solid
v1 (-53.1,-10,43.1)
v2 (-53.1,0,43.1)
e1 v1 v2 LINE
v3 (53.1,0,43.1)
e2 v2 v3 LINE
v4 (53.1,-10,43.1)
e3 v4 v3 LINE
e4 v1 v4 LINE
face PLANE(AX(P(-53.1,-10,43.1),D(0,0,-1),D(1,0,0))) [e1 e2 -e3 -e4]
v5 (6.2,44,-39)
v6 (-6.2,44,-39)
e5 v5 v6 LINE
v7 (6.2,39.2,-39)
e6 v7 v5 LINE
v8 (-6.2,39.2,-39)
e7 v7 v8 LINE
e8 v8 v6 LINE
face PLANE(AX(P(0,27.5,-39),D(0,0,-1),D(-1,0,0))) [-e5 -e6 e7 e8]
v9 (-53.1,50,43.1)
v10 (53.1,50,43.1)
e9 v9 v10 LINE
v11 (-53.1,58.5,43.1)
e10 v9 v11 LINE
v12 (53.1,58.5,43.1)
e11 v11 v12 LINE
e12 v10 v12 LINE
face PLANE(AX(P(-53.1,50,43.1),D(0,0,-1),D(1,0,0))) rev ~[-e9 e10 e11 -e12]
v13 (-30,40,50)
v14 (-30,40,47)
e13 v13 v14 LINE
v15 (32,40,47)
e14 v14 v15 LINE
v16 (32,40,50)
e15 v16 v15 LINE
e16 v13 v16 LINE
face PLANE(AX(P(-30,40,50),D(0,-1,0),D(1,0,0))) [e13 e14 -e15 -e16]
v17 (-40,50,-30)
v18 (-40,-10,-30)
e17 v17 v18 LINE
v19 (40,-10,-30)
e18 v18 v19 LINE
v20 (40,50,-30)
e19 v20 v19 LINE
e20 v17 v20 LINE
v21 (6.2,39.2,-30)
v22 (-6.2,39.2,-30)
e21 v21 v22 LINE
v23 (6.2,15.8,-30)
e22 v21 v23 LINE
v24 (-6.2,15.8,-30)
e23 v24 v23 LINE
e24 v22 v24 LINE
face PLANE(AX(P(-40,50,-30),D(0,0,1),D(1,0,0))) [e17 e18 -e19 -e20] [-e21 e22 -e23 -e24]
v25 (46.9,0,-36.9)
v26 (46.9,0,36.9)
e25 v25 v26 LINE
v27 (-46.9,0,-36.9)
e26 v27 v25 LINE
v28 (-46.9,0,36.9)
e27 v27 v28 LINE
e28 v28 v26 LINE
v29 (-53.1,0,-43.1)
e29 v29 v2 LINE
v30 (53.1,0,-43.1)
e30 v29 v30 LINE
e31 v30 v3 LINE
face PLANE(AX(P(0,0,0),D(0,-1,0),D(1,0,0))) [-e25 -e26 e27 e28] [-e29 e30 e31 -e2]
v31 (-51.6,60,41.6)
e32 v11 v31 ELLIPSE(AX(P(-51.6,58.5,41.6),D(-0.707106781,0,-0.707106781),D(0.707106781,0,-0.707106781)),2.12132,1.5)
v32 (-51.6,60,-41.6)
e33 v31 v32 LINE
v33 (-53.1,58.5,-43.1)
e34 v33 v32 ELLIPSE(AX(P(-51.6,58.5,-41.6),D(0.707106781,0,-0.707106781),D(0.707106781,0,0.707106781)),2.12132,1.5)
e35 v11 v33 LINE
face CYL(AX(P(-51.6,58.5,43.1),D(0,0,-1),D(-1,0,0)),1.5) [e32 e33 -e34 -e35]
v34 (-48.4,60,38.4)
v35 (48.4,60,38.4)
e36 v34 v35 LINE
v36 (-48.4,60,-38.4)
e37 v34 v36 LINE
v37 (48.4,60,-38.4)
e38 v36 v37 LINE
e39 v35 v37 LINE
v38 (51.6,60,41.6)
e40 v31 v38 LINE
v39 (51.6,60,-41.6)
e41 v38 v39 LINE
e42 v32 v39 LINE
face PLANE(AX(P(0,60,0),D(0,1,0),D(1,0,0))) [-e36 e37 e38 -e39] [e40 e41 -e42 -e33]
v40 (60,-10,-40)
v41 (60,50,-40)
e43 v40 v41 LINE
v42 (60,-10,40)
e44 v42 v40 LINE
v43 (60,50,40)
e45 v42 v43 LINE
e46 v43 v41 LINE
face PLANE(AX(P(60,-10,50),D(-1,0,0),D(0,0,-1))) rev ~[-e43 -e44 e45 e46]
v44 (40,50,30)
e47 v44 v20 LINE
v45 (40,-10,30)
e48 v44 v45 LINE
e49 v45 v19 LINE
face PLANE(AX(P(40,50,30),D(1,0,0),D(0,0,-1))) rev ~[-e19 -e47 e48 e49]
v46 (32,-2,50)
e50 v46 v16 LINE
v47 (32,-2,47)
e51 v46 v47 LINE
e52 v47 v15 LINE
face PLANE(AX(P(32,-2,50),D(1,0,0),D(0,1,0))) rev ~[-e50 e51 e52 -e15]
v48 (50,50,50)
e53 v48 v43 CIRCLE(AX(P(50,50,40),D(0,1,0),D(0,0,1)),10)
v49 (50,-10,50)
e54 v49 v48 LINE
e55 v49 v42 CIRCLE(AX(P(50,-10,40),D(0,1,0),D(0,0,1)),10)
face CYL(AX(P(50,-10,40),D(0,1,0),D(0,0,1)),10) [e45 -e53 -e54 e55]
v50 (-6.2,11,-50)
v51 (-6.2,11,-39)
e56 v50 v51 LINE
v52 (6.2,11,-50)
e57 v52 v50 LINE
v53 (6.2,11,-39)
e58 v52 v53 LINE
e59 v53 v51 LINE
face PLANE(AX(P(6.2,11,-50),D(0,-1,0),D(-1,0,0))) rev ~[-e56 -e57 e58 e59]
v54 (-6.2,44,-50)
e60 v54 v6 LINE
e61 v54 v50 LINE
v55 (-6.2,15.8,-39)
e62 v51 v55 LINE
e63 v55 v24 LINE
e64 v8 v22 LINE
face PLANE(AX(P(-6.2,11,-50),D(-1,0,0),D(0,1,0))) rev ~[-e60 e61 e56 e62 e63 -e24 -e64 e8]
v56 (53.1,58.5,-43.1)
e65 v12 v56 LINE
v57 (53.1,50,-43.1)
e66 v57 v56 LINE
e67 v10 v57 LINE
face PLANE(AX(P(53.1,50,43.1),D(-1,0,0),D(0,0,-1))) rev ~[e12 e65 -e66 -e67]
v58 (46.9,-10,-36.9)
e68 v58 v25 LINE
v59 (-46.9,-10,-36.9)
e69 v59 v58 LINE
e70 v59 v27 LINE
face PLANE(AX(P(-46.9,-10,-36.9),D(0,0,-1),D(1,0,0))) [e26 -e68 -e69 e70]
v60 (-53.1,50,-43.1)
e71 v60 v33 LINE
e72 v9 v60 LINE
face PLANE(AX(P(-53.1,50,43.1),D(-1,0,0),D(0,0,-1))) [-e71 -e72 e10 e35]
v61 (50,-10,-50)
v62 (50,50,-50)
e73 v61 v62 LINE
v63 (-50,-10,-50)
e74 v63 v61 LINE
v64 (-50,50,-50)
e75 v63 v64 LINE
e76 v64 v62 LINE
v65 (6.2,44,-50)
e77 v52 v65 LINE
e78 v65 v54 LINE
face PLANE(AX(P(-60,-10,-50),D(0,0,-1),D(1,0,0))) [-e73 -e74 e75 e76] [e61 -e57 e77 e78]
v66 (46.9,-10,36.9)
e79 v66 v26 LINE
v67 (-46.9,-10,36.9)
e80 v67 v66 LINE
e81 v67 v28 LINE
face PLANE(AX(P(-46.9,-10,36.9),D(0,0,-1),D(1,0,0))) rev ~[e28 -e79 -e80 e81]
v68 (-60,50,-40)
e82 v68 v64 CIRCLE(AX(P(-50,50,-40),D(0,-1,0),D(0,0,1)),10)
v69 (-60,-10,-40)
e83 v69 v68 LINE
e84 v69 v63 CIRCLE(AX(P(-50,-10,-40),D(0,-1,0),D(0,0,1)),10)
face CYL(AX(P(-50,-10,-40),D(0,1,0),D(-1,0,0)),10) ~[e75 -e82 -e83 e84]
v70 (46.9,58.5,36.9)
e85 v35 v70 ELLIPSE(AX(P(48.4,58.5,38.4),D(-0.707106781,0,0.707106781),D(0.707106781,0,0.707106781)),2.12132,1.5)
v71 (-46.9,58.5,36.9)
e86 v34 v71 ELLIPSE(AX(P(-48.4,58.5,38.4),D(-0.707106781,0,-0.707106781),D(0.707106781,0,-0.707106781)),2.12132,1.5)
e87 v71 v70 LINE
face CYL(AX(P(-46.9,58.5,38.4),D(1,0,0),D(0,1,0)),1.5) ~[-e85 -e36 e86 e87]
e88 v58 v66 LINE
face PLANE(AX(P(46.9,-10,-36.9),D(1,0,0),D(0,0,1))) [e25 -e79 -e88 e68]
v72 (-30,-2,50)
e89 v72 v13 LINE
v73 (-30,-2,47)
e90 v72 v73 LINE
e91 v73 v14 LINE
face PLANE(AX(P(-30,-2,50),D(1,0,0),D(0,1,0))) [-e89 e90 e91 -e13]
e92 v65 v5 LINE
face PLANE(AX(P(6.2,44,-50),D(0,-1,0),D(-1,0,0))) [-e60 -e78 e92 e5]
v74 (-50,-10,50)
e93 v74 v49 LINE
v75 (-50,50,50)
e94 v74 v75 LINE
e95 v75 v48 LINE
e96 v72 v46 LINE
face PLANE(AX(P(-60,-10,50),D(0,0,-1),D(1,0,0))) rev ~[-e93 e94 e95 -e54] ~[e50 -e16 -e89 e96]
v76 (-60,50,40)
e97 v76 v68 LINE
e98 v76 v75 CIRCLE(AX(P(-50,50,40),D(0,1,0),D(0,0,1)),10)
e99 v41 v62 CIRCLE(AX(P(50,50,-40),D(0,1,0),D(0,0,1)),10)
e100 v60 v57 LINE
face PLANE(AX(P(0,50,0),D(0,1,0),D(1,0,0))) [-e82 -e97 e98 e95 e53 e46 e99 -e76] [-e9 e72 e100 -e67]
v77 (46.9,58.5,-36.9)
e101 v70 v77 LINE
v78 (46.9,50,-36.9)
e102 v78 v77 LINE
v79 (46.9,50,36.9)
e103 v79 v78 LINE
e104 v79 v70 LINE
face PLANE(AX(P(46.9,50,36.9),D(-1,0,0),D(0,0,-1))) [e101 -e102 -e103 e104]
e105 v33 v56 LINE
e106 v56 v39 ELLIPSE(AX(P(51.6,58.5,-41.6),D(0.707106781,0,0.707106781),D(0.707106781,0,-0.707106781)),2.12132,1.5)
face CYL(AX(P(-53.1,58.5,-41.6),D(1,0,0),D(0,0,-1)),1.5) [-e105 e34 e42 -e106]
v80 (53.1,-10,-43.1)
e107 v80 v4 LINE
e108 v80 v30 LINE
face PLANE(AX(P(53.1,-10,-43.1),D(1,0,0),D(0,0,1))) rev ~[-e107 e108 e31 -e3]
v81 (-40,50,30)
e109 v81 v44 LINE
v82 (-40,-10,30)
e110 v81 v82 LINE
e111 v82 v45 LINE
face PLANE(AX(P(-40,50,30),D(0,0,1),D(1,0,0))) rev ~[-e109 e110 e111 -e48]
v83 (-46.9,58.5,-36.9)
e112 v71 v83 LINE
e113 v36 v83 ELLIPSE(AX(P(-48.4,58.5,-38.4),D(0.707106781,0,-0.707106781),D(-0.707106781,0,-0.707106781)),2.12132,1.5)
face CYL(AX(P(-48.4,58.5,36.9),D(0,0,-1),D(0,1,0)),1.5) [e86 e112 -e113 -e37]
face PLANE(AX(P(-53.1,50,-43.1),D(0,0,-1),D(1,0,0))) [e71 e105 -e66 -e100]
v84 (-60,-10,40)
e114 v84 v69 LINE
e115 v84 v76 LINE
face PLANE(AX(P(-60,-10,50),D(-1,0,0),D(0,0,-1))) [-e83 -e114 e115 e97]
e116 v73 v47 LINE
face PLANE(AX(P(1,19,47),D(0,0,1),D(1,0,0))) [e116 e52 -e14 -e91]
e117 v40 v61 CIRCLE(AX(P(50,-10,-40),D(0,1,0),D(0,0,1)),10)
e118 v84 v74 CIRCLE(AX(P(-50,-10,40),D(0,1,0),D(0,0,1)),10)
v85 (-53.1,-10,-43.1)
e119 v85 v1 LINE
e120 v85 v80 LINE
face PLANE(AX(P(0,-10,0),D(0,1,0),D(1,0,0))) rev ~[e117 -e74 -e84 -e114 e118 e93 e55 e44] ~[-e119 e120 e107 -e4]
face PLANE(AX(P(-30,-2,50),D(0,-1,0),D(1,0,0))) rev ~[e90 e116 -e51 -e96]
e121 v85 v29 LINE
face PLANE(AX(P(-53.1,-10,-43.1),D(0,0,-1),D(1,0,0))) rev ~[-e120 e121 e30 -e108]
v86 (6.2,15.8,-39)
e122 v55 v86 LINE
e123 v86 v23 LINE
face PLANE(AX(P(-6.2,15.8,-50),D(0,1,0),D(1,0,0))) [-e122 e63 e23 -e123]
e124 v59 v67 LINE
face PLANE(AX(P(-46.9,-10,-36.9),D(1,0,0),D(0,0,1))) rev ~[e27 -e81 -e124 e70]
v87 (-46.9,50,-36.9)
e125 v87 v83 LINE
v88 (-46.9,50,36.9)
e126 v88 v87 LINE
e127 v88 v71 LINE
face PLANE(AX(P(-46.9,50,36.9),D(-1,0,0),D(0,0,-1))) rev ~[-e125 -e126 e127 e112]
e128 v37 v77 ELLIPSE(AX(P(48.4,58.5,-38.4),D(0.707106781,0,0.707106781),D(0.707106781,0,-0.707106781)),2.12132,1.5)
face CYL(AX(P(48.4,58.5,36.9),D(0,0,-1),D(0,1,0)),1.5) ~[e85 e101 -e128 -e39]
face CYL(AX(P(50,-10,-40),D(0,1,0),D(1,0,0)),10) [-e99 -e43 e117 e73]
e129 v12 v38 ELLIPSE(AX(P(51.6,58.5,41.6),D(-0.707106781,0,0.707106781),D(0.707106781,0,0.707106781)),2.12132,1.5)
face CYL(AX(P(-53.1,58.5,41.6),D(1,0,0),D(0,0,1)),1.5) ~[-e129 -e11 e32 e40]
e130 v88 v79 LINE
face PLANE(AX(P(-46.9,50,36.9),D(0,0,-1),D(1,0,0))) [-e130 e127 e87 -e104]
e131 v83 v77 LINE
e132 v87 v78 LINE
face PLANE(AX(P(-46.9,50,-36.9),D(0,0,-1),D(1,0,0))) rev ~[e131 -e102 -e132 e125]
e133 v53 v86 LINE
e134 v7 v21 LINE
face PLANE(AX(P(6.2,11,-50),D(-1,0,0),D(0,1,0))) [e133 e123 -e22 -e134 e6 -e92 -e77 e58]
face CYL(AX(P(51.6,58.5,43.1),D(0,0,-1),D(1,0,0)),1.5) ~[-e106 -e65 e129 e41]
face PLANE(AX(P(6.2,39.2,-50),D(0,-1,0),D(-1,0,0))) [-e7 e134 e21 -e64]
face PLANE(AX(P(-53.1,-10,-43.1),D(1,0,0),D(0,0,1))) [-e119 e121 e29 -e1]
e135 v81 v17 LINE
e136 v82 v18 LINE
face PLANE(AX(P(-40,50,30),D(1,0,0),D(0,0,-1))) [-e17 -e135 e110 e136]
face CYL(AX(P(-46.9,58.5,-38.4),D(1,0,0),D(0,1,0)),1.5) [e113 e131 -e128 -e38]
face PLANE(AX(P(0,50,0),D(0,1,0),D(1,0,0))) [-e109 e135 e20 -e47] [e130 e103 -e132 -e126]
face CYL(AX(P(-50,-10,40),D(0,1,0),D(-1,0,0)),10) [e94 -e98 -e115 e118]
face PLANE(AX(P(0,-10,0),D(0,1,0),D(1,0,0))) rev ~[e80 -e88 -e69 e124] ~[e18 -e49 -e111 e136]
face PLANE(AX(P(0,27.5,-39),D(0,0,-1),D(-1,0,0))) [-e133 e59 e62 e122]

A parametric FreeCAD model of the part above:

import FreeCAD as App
import Part
import Sketcher

V = App.Vector


def edges_at(feature, points):
    """Names of the edges that pass closest to the given points."""
    edges = feature.Shape.Edges
    near = lambda p: min(range(len(edges)), key=lambda i: edges[i].distToShape(Part.Vertex(*p))[0])
    return sorted({f"Edge{near(p) + 1}" for p in points})

doc = App.newDocument("Part")
body = doc.addObject("PartDesign::Body", "Body")

# Sketch on XZ plane
sketch1 = body.newObject("Sketcher::SketchObject", "Sketch")
sketch1.AttachmentSupport = (doc.getObject("XZ_Plane"), [""])
sketch1.MapMode = "FlatFace"
sketch1.addGeometry([
    Part.LineSegment(V(-60, -50, 0), V(-60, 50, 0)),
    Part.LineSegment(V(-60, 50, 0), V(60, 50, 0)),
    Part.LineSegment(V(60, 50, 0), V(60, -50, 0)),
    Part.LineSegment(V(60, -50, 0), V(-60, -50, 0)),
], False)
sketch1.addConstraint([
    Sketcher.Constraint("Coincident", 0, 2, 1, 1),
    Sketcher.Constraint("Coincident", 1, 2, 2, 1),
    Sketcher.Constraint("Coincident", 2, 2, 3, 1),
    Sketcher.Constraint("Coincident", 3, 2, 0, 1),
    Sketcher.Constraint("Vertical", 0),
    Sketcher.Constraint("Horizontal", 1),
    Sketcher.Constraint("Vertical", 2),
    Sketcher.Constraint("Horizontal", 3),
    Sketcher.Constraint("Symmetric", 0, 2, 2, 2, -1, 1),
    Sketcher.Constraint("DistanceX", 1, 1, 1, 2, 120.0),
    Sketcher.Constraint("DistanceY", 0, 1, 0, 2, 100.0),
])
pad1 = body.newObject("PartDesign::Pad", "Pad")
pad1.Profile = sketch1
pad1.Type = "TwoLengths"
pad1.Length = 50
pad1.Length2 = 10
pad1.Reversed = True
doc.recompute()

fillet = body.newObject("PartDesign::Fillet", "Fillet")
fillet.Base = (pad1, edges_at(pad1, [
    (-60, 20, -50),
    (60, 20, -50),
    (60, 20, 50),
    (-60, 20, 50),
]))
fillet.Radius = 10

# Sketch on XZ plane
sketch2 = body.newObject("Sketcher::SketchObject", "Sketch001")
sketch2.AttachmentSupport = (doc.getObject("XZ_Plane"), [""])
sketch2.MapMode = "FlatFace"
sketch2.AttachmentOffset = App.Placement(V(0, 0, -50), App.Rotation())
sketch2.addGeometry([
    Part.LineSegment(V(-40, -30, 0), V(-40, 30, 0)),
    Part.LineSegment(V(-40, 30, 0), V(40, 30, 0)),
    Part.LineSegment(V(40, 30, 0), V(40, -30, 0)),
    Part.LineSegment(V(40, -30, 0), V(-40, -30, 0)),
], False)
sketch2.addConstraint([
    Sketcher.Constraint("Coincident", 0, 2, 1, 1),
    Sketcher.Constraint("Coincident", 1, 2, 2, 1),
    Sketcher.Constraint("Coincident", 2, 2, 3, 1),
    Sketcher.Constraint("Coincident", 3, 2, 0, 1),
    Sketcher.Constraint("Vertical", 0),
    Sketcher.Constraint("Horizontal", 1),
    Sketcher.Constraint("Vertical", 2),
    Sketcher.Constraint("Horizontal", 3),
    Sketcher.Constraint("Symmetric", 0, 2, 2, 2, -1, 1),
    Sketcher.Constraint("DistanceX", 1, 1, 1, 2, 80.0),
    Sketcher.Constraint("DistanceY", 0, 1, 0, 2, 60.0),
])
pocket1 = body.newObject("PartDesign::Pocket", "Pocket")
pocket1.Profile = sketch2
pocket1.Type = "ThroughAll"
pocket1.Reversed = True

# Sketch on XZ plane
sketch3 = body.newObject("Sketcher::SketchObject", "Sketch002")
sketch3.AttachmentSupport = (doc.getObject("XZ_Plane"), [""])
sketch3.MapMode = "FlatFace"
sketch3.AttachmentOffset = App.Placement(V(0, 0, 10), App.Rotation())
sketch3.addGeometry([
    Part.LineSegment(V(-53.1, 43.1, 0), V(-53.1, -43.1, 0)),  # 0
    Part.LineSegment(V(-53.1, -43.1, 0), V(53.1, -43.1, 0)),  # 1
    Part.LineSegment(V(53.1, -43.1, 0), V(53.1, 43.1, 0)),  # 2
    Part.LineSegment(V(53.1, 43.1, 0), V(-53.1, 43.1, 0)),  # 3
    Part.LineSegment(V(46.9, -36.9, 0), V(-46.9, -36.9, 0)),  # 4
    Part.LineSegment(V(-46.9, -36.9, 0), V(-46.9, 36.9, 0)),  # 5
    Part.LineSegment(V(-46.9, 36.9, 0), V(46.9, 36.9, 0)),  # 6
    Part.LineSegment(V(46.9, 36.9, 0), V(46.9, -36.9, 0)),  # 7
], False)
sketch3.addConstraint([
    Sketcher.Constraint("Coincident", 0, 2, 1, 1),
    Sketcher.Constraint("Coincident", 1, 2, 2, 1),
    Sketcher.Constraint("Coincident", 2, 2, 3, 1),
    Sketcher.Constraint("Coincident", 3, 2, 0, 1),
    Sketcher.Constraint("Coincident", 4, 2, 5, 1),
    Sketcher.Constraint("Coincident", 5, 2, 6, 1),
    Sketcher.Constraint("Coincident", 6, 2, 7, 1),
    Sketcher.Constraint("Coincident", 7, 2, 4, 1),
    Sketcher.Constraint("Vertical", 0),
    Sketcher.Constraint("Horizontal", 1),
    Sketcher.Constraint("Vertical", 2),
    Sketcher.Constraint("Horizontal", 3),
    Sketcher.Constraint("Horizontal", 4),
    Sketcher.Constraint("Vertical", 5),
    Sketcher.Constraint("Horizontal", 6),
    Sketcher.Constraint("Vertical", 7),
    Sketcher.Constraint("Symmetric", 0, 2, 2, 2, -1, 1),
    Sketcher.Constraint("Symmetric", 4, 2, 6, 2, -1, 1),
    Sketcher.Constraint("DistanceX", 1, 1, 1, 2, 106.2),
    Sketcher.Constraint("DistanceX", 4, 2, 4, 1, 93.8),
    Sketcher.Constraint("DistanceY", 0, 2, 0, 1, 86.2),
    Sketcher.Constraint("DistanceY", 5, 1, 5, 2, 73.8),
])
pocket2 = body.newObject("PartDesign::Pocket", "Pocket001")
pocket2.Profile = sketch3
pocket2.Length = 10

# Sketch on XZ plane
sketch4 = body.newObject("Sketcher::SketchObject", "Sketch003")
sketch4.AttachmentSupport = (doc.getObject("XZ_Plane"), [""])
sketch4.MapMode = "FlatFace"
sketch4.AttachmentOffset = App.Placement(V(0, 0, -50), App.Rotation())
sketch4.addGeometry([
    Part.LineSegment(V(-53.1, -43.1, 0), V(-53.1, 43.1, 0)),  # 0
    Part.LineSegment(V(-53.1, 43.1, 0), V(53.1, 43.1, 0)),  # 1
    Part.LineSegment(V(53.1, 43.1, 0), V(53.1, -43.1, 0)),  # 2
    Part.LineSegment(V(53.1, -43.1, 0), V(-53.1, -43.1, 0)),  # 3
    Part.LineSegment(V(46.9, 36.9, 0), V(-46.9, 36.9, 0)),  # 4
    Part.LineSegment(V(-46.9, 36.9, 0), V(-46.9, -36.9, 0)),  # 5
    Part.LineSegment(V(-46.9, -36.9, 0), V(46.9, -36.9, 0)),  # 6
    Part.LineSegment(V(46.9, -36.9, 0), V(46.9, 36.9, 0)),  # 7
], False)
sketch4.addConstraint([
    Sketcher.Constraint("Coincident", 0, 2, 1, 1),
    Sketcher.Constraint("Coincident", 1, 2, 2, 1),
    Sketcher.Constraint("Coincident", 2, 2, 3, 1),
    Sketcher.Constraint("Coincident", 3, 2, 0, 1),
    Sketcher.Constraint("Coincident", 4, 2, 5, 1),
    Sketcher.Constraint("Coincident", 5, 2, 6, 1),
    Sketcher.Constraint("Coincident", 6, 2, 7, 1),
    Sketcher.Constraint("Coincident", 7, 2, 4, 1),
    Sketcher.Constraint("Vertical", 0),
    Sketcher.Constraint("Horizontal", 1),
    Sketcher.Constraint("Vertical", 2),
    Sketcher.Constraint("Horizontal", 3),
    Sketcher.Constraint("Horizontal", 4),
    Sketcher.Constraint("Vertical", 5),
    Sketcher.Constraint("Horizontal", 6),
    Sketcher.Constraint("Vertical", 7),
    Sketcher.Constraint("Symmetric", 0, 2, 2, 2, -1, 1),
    Sketcher.Constraint("Symmetric", 4, 2, 6, 2, -1, 1),
    Sketcher.Constraint("DistanceX", 1, 1, 1, 2, 106.2),
    Sketcher.Constraint("DistanceX", 4, 2, 4, 1, 93.8),
    Sketcher.Constraint("DistanceY", 0, 1, 0, 2, 86.2),
    Sketcher.Constraint("DistanceY", 5, 2, 5, 1, 73.8),
])
pad2 = body.newObject("PartDesign::Pad", "Pad001")
pad2.Profile = sketch4
pad2.Length = 10
pad2.Reversed = True
doc.recompute()

fillet2 = body.newObject("PartDesign::Fillet", "Fillet001")
fillet2.Base = (pad2, edges_at(pad2, [
    (-46.9, 60, 0),
    (0, 60, 36.9),
    (46.9, 60, 0),
    (0, 60, -36.9),
    (0, 60, -43.1),
    (-53.1, 60, 0),
    (0, 60, 43.1),
    (53.1, 60, 0),
]))
fillet2.Radius = 1.5

# Sketch on XY plane
sketch5 = body.newObject("Sketcher::SketchObject", "Sketch004")
sketch5.AttachmentSupport = (doc.getObject("XY_Plane"), [""])
sketch5.MapMode = "FlatFace"
sketch5.AttachmentOffset = App.Placement(V(0, 0, -50), App.Rotation())
sketch5.addGeometry([
    Part.LineSegment(V(6.2, 44, 0), V(6.2, 11, 0)),
    Part.LineSegment(V(6.2, 11, 0), V(-6.2, 11, 0)),
    Part.LineSegment(V(-6.2, 11, 0), V(-6.2, 44, 0)),
    Part.LineSegment(V(-6.2, 44, 0), V(6.2, 44, 0)),
], False)
sketch5.addConstraint([
    Sketcher.Constraint("Coincident", 0, 2, 1, 1),
    Sketcher.Constraint("Coincident", 1, 2, 2, 1),
    Sketcher.Constraint("Coincident", 2, 2, 3, 1),
    Sketcher.Constraint("Coincident", 3, 2, 0, 1),
    Sketcher.Constraint("Vertical", 0),
    Sketcher.Constraint("Horizontal", 1),
    Sketcher.Constraint("Vertical", 2),
    Sketcher.Constraint("Horizontal", 3),
    Sketcher.Constraint("DistanceY", 0, 2, 0, 1, 33.0),
    Sketcher.Constraint("DistanceX", 1, 2, 1, 1, 12.4),
    Sketcher.Constraint("DistanceY", -1, 1, 0, 2, 11.0),
    Sketcher.Constraint("DistanceX", -1, 1, 0, 2, 6.2),
])
pocket3 = body.newObject("PartDesign::Pocket", "Pocket002")
pocket3.Profile = sketch5
pocket3.Length = 11
pocket3.Reversed = True

# Sketch on XY plane
sketch6 = body.newObject("Sketcher::SketchObject", "Sketch005")
sketch6.AttachmentSupport = (doc.getObject("XY_Plane"), [""])
sketch6.MapMode = "FlatFace"
sketch6.AttachmentOffset = App.Placement(V(0, 0, 50), App.Rotation())
sketch6.addGeometry([
    Part.LineSegment(V(-30, 40, 0), V(-30, -2, 0)),
    Part.LineSegment(V(-30, -2, 0), V(32, -2, 0)),
    Part.LineSegment(V(32, -2, 0), V(32, 40, 0)),
    Part.LineSegment(V(32, 40, 0), V(-30, 40, 0)),
], False)
sketch6.addConstraint([
    Sketcher.Constraint("Coincident", 0, 2, 1, 1),
    Sketcher.Constraint("Coincident", 1, 2, 2, 1),
    Sketcher.Constraint("Coincident", 2, 2, 3, 1),
    Sketcher.Constraint("Coincident", 3, 2, 0, 1),
    Sketcher.Constraint("Vertical", 0),
    Sketcher.Constraint("Horizontal", 1),
    Sketcher.Constraint("Vertical", 2),
    Sketcher.Constraint("Horizontal", 3),
    Sketcher.Constraint("DistanceX", 1, 1, 1, 2, 62.0),
    Sketcher.Constraint("DistanceY", 0, 2, 0, 1, 42.0),
    Sketcher.Constraint("DistanceX", 0, 2, -1, 1, 30.0),
    Sketcher.Constraint("DistanceY", 0, 2, -1, 1, 2.0),
])
pocket4 = body.newObject("PartDesign::Pocket", "Pocket003")
pocket4.Profile = sketch6
pocket4.Length = 3

# Sketch on XY plane
sketch7 = body.newObject("Sketcher::SketchObject", "Sketch006")
sketch7.AttachmentSupport = (doc.getObject("XY_Plane"), [""])
sketch7.MapMode = "FlatFace"
sketch7.AttachmentOffset = App.Placement(V(0, 0, -50), App.Rotation())
sketch7.addGeometry([
    Part.LineSegment(V(6.2, 39.2, 0), V(6.2, 15.8, 0)),
    Part.LineSegment(V(6.2, 15.8, 0), V(-6.2, 15.8, 0)),
    Part.LineSegment(V(-6.2, 15.8, 0), V(-6.2, 39.2, 0)),
    Part.LineSegment(V(-6.2, 39.2, 0), V(6.2, 39.2, 0)),
], False)
sketch7.addConstraint([
    Sketcher.Constraint("Coincident", 0, 2, 1, 1),
    Sketcher.Constraint("Coincident", 1, 2, 2, 1),
    Sketcher.Constraint("Coincident", 2, 2, 3, 1),
    Sketcher.Constraint("Coincident", 3, 2, 0, 1),
    Sketcher.Constraint("Vertical", 0),
    Sketcher.Constraint("Horizontal", 1),
    Sketcher.Constraint("Vertical", 2),
    Sketcher.Constraint("Horizontal", 3),
    Sketcher.Constraint("DistanceX", 1, 2, 1, 1, 12.4),
    Sketcher.Constraint("DistanceY", 0, 2, 0, 1, 23.4),
    Sketcher.Constraint("DistanceX", -1, 1, 0, 2, 6.2),
    Sketcher.Constraint("DistanceY", -1, 1, 0, 2, 15.8),
])
pocket5 = body.newObject("PartDesign::Pocket", "Pocket004")
pocket5.Profile = sketch7
pocket5.Length = 20
pocket5.Reversed = True

doc.recompute()
